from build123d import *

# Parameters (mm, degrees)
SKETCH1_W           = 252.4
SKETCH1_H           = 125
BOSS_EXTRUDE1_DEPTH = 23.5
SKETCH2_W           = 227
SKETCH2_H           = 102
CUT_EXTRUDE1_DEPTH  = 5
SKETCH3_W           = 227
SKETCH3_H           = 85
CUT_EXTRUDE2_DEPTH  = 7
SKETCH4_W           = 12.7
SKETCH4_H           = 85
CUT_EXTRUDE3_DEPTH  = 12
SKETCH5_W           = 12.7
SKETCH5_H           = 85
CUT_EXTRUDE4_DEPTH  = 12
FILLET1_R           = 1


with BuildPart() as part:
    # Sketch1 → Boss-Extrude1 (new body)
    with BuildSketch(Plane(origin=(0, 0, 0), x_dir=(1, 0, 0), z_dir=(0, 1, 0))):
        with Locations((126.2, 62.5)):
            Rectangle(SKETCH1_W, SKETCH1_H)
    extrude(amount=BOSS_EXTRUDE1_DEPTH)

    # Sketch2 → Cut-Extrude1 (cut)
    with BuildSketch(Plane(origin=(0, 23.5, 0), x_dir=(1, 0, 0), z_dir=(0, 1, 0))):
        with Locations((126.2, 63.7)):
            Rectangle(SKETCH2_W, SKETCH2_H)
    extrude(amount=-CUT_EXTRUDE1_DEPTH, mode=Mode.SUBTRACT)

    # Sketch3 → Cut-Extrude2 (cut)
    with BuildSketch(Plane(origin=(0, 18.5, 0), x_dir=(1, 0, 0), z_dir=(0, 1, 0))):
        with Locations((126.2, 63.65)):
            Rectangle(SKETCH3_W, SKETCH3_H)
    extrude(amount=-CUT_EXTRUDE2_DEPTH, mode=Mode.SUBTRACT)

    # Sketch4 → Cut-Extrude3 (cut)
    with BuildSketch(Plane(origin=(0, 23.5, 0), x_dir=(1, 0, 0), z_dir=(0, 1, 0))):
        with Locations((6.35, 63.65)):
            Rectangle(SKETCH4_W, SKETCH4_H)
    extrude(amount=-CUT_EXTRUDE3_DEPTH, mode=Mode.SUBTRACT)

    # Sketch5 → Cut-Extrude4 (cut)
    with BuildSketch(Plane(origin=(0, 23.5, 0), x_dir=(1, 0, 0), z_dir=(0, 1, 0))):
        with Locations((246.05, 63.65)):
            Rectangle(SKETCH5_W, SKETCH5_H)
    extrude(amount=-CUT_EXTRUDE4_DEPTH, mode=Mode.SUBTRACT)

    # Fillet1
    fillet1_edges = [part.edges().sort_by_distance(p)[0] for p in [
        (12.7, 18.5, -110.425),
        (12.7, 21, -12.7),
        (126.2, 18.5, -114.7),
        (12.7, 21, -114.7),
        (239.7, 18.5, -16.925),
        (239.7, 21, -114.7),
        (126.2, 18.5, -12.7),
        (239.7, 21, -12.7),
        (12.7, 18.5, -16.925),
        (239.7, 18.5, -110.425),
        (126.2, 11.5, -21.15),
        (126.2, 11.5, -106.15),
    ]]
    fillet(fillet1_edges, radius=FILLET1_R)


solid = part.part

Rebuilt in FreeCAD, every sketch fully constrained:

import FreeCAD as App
import Part
import Sketcher

V = App.Vector


def edges_at(feature, points):
    """Names of the edges that pass closest to the given points."""
    edges = feature.Shape.Edges
    near = lambda p: min(range(len(edges)), key=lambda i: edges[i].distToShape(Part.Vertex(*p))[0])
    return sorted({f"Edge{near(p) + 1}" for p in points})

doc = App.newDocument("Part")
params = doc.addObject("Spreadsheet::Sheet", "Params")
for row, (alias, value) in enumerate([
    ("sketch1_height", "125 mm"),
    ("sketch1_width", "252.4 mm"),
    ("pad1_length", "23.5 mm"),
    ("sketch2_width", "227 mm"),
    ("sketch2_height", "102 mm"),
    ("pocket1_length", "5 mm"),
    ("sketch3_width", "227 mm"),
    ("sketch3_height", "85 mm"),
    ("pocket2_length", "7 mm"),
    ("sketch4_height", "85 mm"),
    ("sketch4_width", "12.7 mm"),
    ("pocket3_length", "12 mm"),
    ("sketch5_height", "85 mm"),
    ("sketch5_width", "12.7 mm"),
    ("pocket4_length", "12 mm"),
    ("fillet_radius", "1 mm"),
], start=1):
    params.set(f"A{row}", alias)
    params.set(f"B{row}", "=" + value)
    params.setAlias(f"B{row}", alias)

body = doc.addObject("PartDesign::Body", "Body")

# Sketch on XZ plane
sketch1 = body.newObject("Sketcher::SketchObject", "Sketch")
sketch1.AttachmentSupport = (doc.getObject("XZ_Plane"), [""])
sketch1.MapMode = "FlatFace"
sketch1.addGeometry([
    Part.LineSegment(V(0, -125, 0), V(0, 0, 0)),
    Part.LineSegment(V(0, 0, 0), V(252, 0, 0)),
    Part.LineSegment(V(252, 0, 0), V(252, -125, 0)),
    Part.LineSegment(V(252, -125, 0), V(0, -125, 0)),
], False)
sketch1.addConstraint([
    Sketcher.Constraint("Coincident", 0, 2, 1, 1),
    Sketcher.Constraint("Coincident", 1, 2, 2, 1),
    Sketcher.Constraint("Coincident", 2, 2, 3, 1),
    Sketcher.Constraint("Coincident", 3, 2, 0, 1),
    Sketcher.Constraint("Vertical", 0),
    Sketcher.Constraint("Horizontal", 1),
    Sketcher.Constraint("Vertical", 2),
    Sketcher.Constraint("Horizontal", 3),
    Sketcher.Constraint("Coincident", 0, 2, -1, 1),
    Sketcher.Constraint("DistanceY", 0, 1, 0, 2, 125.0),
    Sketcher.Constraint("DistanceX", 1, 1, 1, 2, 252.4),
])
sketch1.setExpression("Constraints[9]", "Params.sketch1_height")
sketch1.setExpression("Constraints[10]", "Params.sketch1_width")
pad1 = body.newObject("PartDesign::Pad", "Pad")
pad1.Profile = sketch1
pad1.setExpression("Length", "Params.pad1_length")
pad1.Reversed = True

# Sketch on XZ plane
sketch2 = body.newObject("Sketcher::SketchObject", "Sketch001")
sketch2.AttachmentSupport = (doc.getObject("XZ_Plane"), [""])
sketch2.MapMode = "FlatFace"
sketch2.AttachmentOffset = App.Placement(V(0, 0, -23.5), App.Rotation())
sketch2.addGeometry([
    Part.LineSegment(V(13, -115, 0), V(13, -13, 0)),
    Part.LineSegment(V(13, -13, 0), V(240, -13, 0)),
    Part.LineSegment(V(240, -13, 0), V(240, -115, 0)),
    Part.LineSegment(V(240, -115, 0), V(13, -115, 0)),
], False)
sketch2.addConstraint([
    Sketcher.Constraint("Coincident", 0, 2, 1, 1),
    Sketcher.Constraint("Coincident", 1, 2, 2, 1),
    Sketcher.Constraint("Coincident", 2, 2, 3, 1),
    Sketcher.Constraint("Coincident", 3, 2, 0, 1),
    Sketcher.Constraint("Vertical", 0),
    Sketcher.Constraint("Horizontal", 1),
    Sketcher.Constraint("Vertical", 2),
    Sketcher.Constraint("Horizontal", 3),
    Sketcher.Constraint("DistanceX", 1, 1, 1, 2, 227.0),
    Sketcher.Constraint("DistanceY", 0, 1, 0, 2, 102.0),
    Sketcher.Constraint("DistanceX", -1, 1, 0, 2, 12.7),
    Sketcher.Constraint("DistanceY", 0, 2, -1, 1, 12.7),
])
sketch2.setExpression("Constraints[8]", "Params.sketch2_width")
sketch2.setExpression("Constraints[9]", "Params.sketch2_height")
pocket1 = body.newObject("PartDesign::Pocket", "Pocket")
pocket1.Profile = sketch2
pocket1.setExpression("Length", "Params.pocket1_length")
pocket1.Reversed = True

# Sketch on XZ plane
sketch3 = body.newObject("Sketcher::SketchObject", "Sketch002")
sketch3.AttachmentSupport = (doc.getObject("XZ_Plane"), [""])
sketch3.MapMode = "FlatFace"
sketch3.AttachmentOffset = App.Placement(V(0, 0, -18.5), App.Rotation())
sketch3.addGeometry([
    Part.LineSegment(V(13, -106, 0), V(13, -21, 0)),
    Part.LineSegment(V(13, -21, 0), V(240, -21, 0)),
    Part.LineSegment(V(240, -21, 0), V(240, -106, 0)),
    Part.LineSegment(V(240, -106, 0), V(13, -106, 0)),
], False)
sketch3.addConstraint([
    Sketcher.Constraint("Coincident", 0, 2, 1, 1),
    Sketcher.Constraint("Coincident", 1, 2, 2, 1),
    Sketcher.Constraint("Coincident", 2, 2, 3, 1),
    Sketcher.Constraint("Coincident", 3, 2, 0, 1),
    Sketcher.Constraint("Vertical", 0),
    Sketcher.Constraint("Horizontal", 1),
    Sketcher.Constraint("Vertical", 2),
    Sketcher.Constraint("Horizontal", 3),
    Sketcher.Constraint("DistanceX", 1, 1, 1, 2, 227.0),
    Sketcher.Constraint("DistanceY", 0, 1, 0, 2, 85.0),
    Sketcher.Constraint("DistanceX", -1, 1, 0, 2, 12.7),
    Sketcher.Constraint("DistanceY", 0, 2, -1, 1, 21.15),
])
sketch3.setExpression("Constraints[8]", "Params.sketch3_width")
sketch3.setExpression("Constraints[9]", "Params.sketch3_height")
pocket2 = body.newObject("PartDesign::Pocket", "Pocket001")
pocket2.Profile = sketch3
pocket2.setExpression("Length", "Params.pocket2_length")
pocket2.Reversed = True

# Sketch on XZ plane
sketch4 = body.newObject("Sketcher::SketchObject", "Sketch003")
sketch4.AttachmentSupport = (doc.getObject("XZ_Plane"), [""])
sketch4.MapMode = "FlatFace"
sketch4.AttachmentOffset = App.Placement(V(0, 0, -23.5), App.Rotation())
sketch4.addGeometry([
    Part.LineSegment(V(0, -106, 0), V(0, -21, 0)),
    Part.LineSegment(V(0, -21, 0), V(13, -21, 0)),
    Part.LineSegment(V(13, -21, 0), V(13, -106, 0)),
    Part.LineSegment(V(13, -106, 0), V(0, -106, 0)),
], False)
sketch4.addConstraint([
    Sketcher.Constraint("Coincident", 0, 2, 1, 1),
    Sketcher.Constraint("Coincident", 1, 2, 2, 1),
    Sketcher.Constraint("Coincident", 2, 2, 3, 1),
    Sketcher.Constraint("Coincident", 3, 2, 0, 1),
    Sketcher.Constraint("Vertical", 0),
    Sketcher.Constraint("Horizontal", 1),
    Sketcher.Constraint("Vertical", 2),
    Sketcher.Constraint("Horizontal", 3),
    Sketcher.Constraint("PointOnObject", 0, 2, -2),
    Sketcher.Constraint("DistanceY", 0, 1, 0, 2, 85.0),
    Sketcher.Constraint("DistanceX", 1, 1, 1, 2, 12.7),
    Sketcher.Constraint("DistanceY", 0, 2, -1, 1, 21.15),
])
sketch4.setExpression("Constraints[9]", "Params.sketch4_height")
sketch4.setExpression("Constraints[10]", "Params.sketch4_width")
pocket3 = body.newObject("PartDesign::Pocket", "Pocket002")
pocket3.Profile = sketch4
pocket3.setExpression("Length", "Params.pocket3_length")
pocket3.Reversed = True

# Sketch on XZ plane
sketch5 = body.newObject("Sketcher::SketchObject", "Sketch004")
sketch5.AttachmentSupport = (doc.getObject("XZ_Plane"), [""])
sketch5.MapMode = "FlatFace"
sketch5.AttachmentOffset = App.Placement(V(0, 0, -23.5), App.Rotation())
sketch5.addGeometry([
    Part.LineSegment(V(240, -106, 0), V(240, -21, 0)),
    Part.LineSegment(V(240, -21, 0), V(252, -21, 0)),
    Part.LineSegment(V(252, -21, 0), V(252, -106, 0)),
    Part.LineSegment(V(252, -106, 0), V(240, -106, 0)),
], False)
sketch5.addConstraint([
    Sketcher.Constraint("Coincident", 0, 2, 1, 1),
    Sketcher.Constraint("Coincident", 1, 2, 2, 1),
    Sketcher.Constraint("Coincident", 2, 2, 3, 1),
    Sketcher.Constraint("Coincident", 3, 2, 0, 1),
    Sketcher.Constraint("Vertical", 0),
    Sketcher.Constraint("Horizontal", 1),
    Sketcher.Constraint("Vertical", 2),
    Sketcher.Constraint("Horizontal", 3),
    Sketcher.Constraint("DistanceY", 0, 1, 0, 2, 85.0),
    Sketcher.Constraint("DistanceX", 1, 1, 1, 2, 12.7),
    Sketcher.Constraint("DistanceX", -1, 1, 0, 2, 239.7),
    Sketcher.Constraint("DistanceY", 0, 2, -1, 1, 21.15),
])
sketch5.setExpression("Constraints[8]", "Params.sketch5_height")
sketch5.setExpression("Constraints[9]", "Params.sketch5_width")
pocket4 = body.newObject("PartDesign::Pocket", "Pocket003")
pocket4.Profile = sketch5
pocket4.setExpression("Length", "Params.pocket4_length")
pocket4.Reversed = True
doc.recompute()

fillet = body.newObject("PartDesign::Fillet", "Fillet")
fillet.Base = (pocket4, edges_at(pocket4, [
    (12.7, 18.5, -110.425),
    (12.7, 21, -12.7),
    (126.2, 18.5, -114.7),
    (12.7, 21, -114.7),
    (239.7, 18.5, -16.925),
    (239.7, 21, -114.7),
    (126.2, 18.5, -12.7),
    (239.7, 21, -12.7),
    (12.7, 18.5, -16.925),
    (239.7, 18.5, -110.425),
    (126.2, 11.5, -21.15),
    (126.2, 11.5, -106.15),
]))
fillet.setExpression("Radius", "Params.fillet_radius")

doc.recompute()
